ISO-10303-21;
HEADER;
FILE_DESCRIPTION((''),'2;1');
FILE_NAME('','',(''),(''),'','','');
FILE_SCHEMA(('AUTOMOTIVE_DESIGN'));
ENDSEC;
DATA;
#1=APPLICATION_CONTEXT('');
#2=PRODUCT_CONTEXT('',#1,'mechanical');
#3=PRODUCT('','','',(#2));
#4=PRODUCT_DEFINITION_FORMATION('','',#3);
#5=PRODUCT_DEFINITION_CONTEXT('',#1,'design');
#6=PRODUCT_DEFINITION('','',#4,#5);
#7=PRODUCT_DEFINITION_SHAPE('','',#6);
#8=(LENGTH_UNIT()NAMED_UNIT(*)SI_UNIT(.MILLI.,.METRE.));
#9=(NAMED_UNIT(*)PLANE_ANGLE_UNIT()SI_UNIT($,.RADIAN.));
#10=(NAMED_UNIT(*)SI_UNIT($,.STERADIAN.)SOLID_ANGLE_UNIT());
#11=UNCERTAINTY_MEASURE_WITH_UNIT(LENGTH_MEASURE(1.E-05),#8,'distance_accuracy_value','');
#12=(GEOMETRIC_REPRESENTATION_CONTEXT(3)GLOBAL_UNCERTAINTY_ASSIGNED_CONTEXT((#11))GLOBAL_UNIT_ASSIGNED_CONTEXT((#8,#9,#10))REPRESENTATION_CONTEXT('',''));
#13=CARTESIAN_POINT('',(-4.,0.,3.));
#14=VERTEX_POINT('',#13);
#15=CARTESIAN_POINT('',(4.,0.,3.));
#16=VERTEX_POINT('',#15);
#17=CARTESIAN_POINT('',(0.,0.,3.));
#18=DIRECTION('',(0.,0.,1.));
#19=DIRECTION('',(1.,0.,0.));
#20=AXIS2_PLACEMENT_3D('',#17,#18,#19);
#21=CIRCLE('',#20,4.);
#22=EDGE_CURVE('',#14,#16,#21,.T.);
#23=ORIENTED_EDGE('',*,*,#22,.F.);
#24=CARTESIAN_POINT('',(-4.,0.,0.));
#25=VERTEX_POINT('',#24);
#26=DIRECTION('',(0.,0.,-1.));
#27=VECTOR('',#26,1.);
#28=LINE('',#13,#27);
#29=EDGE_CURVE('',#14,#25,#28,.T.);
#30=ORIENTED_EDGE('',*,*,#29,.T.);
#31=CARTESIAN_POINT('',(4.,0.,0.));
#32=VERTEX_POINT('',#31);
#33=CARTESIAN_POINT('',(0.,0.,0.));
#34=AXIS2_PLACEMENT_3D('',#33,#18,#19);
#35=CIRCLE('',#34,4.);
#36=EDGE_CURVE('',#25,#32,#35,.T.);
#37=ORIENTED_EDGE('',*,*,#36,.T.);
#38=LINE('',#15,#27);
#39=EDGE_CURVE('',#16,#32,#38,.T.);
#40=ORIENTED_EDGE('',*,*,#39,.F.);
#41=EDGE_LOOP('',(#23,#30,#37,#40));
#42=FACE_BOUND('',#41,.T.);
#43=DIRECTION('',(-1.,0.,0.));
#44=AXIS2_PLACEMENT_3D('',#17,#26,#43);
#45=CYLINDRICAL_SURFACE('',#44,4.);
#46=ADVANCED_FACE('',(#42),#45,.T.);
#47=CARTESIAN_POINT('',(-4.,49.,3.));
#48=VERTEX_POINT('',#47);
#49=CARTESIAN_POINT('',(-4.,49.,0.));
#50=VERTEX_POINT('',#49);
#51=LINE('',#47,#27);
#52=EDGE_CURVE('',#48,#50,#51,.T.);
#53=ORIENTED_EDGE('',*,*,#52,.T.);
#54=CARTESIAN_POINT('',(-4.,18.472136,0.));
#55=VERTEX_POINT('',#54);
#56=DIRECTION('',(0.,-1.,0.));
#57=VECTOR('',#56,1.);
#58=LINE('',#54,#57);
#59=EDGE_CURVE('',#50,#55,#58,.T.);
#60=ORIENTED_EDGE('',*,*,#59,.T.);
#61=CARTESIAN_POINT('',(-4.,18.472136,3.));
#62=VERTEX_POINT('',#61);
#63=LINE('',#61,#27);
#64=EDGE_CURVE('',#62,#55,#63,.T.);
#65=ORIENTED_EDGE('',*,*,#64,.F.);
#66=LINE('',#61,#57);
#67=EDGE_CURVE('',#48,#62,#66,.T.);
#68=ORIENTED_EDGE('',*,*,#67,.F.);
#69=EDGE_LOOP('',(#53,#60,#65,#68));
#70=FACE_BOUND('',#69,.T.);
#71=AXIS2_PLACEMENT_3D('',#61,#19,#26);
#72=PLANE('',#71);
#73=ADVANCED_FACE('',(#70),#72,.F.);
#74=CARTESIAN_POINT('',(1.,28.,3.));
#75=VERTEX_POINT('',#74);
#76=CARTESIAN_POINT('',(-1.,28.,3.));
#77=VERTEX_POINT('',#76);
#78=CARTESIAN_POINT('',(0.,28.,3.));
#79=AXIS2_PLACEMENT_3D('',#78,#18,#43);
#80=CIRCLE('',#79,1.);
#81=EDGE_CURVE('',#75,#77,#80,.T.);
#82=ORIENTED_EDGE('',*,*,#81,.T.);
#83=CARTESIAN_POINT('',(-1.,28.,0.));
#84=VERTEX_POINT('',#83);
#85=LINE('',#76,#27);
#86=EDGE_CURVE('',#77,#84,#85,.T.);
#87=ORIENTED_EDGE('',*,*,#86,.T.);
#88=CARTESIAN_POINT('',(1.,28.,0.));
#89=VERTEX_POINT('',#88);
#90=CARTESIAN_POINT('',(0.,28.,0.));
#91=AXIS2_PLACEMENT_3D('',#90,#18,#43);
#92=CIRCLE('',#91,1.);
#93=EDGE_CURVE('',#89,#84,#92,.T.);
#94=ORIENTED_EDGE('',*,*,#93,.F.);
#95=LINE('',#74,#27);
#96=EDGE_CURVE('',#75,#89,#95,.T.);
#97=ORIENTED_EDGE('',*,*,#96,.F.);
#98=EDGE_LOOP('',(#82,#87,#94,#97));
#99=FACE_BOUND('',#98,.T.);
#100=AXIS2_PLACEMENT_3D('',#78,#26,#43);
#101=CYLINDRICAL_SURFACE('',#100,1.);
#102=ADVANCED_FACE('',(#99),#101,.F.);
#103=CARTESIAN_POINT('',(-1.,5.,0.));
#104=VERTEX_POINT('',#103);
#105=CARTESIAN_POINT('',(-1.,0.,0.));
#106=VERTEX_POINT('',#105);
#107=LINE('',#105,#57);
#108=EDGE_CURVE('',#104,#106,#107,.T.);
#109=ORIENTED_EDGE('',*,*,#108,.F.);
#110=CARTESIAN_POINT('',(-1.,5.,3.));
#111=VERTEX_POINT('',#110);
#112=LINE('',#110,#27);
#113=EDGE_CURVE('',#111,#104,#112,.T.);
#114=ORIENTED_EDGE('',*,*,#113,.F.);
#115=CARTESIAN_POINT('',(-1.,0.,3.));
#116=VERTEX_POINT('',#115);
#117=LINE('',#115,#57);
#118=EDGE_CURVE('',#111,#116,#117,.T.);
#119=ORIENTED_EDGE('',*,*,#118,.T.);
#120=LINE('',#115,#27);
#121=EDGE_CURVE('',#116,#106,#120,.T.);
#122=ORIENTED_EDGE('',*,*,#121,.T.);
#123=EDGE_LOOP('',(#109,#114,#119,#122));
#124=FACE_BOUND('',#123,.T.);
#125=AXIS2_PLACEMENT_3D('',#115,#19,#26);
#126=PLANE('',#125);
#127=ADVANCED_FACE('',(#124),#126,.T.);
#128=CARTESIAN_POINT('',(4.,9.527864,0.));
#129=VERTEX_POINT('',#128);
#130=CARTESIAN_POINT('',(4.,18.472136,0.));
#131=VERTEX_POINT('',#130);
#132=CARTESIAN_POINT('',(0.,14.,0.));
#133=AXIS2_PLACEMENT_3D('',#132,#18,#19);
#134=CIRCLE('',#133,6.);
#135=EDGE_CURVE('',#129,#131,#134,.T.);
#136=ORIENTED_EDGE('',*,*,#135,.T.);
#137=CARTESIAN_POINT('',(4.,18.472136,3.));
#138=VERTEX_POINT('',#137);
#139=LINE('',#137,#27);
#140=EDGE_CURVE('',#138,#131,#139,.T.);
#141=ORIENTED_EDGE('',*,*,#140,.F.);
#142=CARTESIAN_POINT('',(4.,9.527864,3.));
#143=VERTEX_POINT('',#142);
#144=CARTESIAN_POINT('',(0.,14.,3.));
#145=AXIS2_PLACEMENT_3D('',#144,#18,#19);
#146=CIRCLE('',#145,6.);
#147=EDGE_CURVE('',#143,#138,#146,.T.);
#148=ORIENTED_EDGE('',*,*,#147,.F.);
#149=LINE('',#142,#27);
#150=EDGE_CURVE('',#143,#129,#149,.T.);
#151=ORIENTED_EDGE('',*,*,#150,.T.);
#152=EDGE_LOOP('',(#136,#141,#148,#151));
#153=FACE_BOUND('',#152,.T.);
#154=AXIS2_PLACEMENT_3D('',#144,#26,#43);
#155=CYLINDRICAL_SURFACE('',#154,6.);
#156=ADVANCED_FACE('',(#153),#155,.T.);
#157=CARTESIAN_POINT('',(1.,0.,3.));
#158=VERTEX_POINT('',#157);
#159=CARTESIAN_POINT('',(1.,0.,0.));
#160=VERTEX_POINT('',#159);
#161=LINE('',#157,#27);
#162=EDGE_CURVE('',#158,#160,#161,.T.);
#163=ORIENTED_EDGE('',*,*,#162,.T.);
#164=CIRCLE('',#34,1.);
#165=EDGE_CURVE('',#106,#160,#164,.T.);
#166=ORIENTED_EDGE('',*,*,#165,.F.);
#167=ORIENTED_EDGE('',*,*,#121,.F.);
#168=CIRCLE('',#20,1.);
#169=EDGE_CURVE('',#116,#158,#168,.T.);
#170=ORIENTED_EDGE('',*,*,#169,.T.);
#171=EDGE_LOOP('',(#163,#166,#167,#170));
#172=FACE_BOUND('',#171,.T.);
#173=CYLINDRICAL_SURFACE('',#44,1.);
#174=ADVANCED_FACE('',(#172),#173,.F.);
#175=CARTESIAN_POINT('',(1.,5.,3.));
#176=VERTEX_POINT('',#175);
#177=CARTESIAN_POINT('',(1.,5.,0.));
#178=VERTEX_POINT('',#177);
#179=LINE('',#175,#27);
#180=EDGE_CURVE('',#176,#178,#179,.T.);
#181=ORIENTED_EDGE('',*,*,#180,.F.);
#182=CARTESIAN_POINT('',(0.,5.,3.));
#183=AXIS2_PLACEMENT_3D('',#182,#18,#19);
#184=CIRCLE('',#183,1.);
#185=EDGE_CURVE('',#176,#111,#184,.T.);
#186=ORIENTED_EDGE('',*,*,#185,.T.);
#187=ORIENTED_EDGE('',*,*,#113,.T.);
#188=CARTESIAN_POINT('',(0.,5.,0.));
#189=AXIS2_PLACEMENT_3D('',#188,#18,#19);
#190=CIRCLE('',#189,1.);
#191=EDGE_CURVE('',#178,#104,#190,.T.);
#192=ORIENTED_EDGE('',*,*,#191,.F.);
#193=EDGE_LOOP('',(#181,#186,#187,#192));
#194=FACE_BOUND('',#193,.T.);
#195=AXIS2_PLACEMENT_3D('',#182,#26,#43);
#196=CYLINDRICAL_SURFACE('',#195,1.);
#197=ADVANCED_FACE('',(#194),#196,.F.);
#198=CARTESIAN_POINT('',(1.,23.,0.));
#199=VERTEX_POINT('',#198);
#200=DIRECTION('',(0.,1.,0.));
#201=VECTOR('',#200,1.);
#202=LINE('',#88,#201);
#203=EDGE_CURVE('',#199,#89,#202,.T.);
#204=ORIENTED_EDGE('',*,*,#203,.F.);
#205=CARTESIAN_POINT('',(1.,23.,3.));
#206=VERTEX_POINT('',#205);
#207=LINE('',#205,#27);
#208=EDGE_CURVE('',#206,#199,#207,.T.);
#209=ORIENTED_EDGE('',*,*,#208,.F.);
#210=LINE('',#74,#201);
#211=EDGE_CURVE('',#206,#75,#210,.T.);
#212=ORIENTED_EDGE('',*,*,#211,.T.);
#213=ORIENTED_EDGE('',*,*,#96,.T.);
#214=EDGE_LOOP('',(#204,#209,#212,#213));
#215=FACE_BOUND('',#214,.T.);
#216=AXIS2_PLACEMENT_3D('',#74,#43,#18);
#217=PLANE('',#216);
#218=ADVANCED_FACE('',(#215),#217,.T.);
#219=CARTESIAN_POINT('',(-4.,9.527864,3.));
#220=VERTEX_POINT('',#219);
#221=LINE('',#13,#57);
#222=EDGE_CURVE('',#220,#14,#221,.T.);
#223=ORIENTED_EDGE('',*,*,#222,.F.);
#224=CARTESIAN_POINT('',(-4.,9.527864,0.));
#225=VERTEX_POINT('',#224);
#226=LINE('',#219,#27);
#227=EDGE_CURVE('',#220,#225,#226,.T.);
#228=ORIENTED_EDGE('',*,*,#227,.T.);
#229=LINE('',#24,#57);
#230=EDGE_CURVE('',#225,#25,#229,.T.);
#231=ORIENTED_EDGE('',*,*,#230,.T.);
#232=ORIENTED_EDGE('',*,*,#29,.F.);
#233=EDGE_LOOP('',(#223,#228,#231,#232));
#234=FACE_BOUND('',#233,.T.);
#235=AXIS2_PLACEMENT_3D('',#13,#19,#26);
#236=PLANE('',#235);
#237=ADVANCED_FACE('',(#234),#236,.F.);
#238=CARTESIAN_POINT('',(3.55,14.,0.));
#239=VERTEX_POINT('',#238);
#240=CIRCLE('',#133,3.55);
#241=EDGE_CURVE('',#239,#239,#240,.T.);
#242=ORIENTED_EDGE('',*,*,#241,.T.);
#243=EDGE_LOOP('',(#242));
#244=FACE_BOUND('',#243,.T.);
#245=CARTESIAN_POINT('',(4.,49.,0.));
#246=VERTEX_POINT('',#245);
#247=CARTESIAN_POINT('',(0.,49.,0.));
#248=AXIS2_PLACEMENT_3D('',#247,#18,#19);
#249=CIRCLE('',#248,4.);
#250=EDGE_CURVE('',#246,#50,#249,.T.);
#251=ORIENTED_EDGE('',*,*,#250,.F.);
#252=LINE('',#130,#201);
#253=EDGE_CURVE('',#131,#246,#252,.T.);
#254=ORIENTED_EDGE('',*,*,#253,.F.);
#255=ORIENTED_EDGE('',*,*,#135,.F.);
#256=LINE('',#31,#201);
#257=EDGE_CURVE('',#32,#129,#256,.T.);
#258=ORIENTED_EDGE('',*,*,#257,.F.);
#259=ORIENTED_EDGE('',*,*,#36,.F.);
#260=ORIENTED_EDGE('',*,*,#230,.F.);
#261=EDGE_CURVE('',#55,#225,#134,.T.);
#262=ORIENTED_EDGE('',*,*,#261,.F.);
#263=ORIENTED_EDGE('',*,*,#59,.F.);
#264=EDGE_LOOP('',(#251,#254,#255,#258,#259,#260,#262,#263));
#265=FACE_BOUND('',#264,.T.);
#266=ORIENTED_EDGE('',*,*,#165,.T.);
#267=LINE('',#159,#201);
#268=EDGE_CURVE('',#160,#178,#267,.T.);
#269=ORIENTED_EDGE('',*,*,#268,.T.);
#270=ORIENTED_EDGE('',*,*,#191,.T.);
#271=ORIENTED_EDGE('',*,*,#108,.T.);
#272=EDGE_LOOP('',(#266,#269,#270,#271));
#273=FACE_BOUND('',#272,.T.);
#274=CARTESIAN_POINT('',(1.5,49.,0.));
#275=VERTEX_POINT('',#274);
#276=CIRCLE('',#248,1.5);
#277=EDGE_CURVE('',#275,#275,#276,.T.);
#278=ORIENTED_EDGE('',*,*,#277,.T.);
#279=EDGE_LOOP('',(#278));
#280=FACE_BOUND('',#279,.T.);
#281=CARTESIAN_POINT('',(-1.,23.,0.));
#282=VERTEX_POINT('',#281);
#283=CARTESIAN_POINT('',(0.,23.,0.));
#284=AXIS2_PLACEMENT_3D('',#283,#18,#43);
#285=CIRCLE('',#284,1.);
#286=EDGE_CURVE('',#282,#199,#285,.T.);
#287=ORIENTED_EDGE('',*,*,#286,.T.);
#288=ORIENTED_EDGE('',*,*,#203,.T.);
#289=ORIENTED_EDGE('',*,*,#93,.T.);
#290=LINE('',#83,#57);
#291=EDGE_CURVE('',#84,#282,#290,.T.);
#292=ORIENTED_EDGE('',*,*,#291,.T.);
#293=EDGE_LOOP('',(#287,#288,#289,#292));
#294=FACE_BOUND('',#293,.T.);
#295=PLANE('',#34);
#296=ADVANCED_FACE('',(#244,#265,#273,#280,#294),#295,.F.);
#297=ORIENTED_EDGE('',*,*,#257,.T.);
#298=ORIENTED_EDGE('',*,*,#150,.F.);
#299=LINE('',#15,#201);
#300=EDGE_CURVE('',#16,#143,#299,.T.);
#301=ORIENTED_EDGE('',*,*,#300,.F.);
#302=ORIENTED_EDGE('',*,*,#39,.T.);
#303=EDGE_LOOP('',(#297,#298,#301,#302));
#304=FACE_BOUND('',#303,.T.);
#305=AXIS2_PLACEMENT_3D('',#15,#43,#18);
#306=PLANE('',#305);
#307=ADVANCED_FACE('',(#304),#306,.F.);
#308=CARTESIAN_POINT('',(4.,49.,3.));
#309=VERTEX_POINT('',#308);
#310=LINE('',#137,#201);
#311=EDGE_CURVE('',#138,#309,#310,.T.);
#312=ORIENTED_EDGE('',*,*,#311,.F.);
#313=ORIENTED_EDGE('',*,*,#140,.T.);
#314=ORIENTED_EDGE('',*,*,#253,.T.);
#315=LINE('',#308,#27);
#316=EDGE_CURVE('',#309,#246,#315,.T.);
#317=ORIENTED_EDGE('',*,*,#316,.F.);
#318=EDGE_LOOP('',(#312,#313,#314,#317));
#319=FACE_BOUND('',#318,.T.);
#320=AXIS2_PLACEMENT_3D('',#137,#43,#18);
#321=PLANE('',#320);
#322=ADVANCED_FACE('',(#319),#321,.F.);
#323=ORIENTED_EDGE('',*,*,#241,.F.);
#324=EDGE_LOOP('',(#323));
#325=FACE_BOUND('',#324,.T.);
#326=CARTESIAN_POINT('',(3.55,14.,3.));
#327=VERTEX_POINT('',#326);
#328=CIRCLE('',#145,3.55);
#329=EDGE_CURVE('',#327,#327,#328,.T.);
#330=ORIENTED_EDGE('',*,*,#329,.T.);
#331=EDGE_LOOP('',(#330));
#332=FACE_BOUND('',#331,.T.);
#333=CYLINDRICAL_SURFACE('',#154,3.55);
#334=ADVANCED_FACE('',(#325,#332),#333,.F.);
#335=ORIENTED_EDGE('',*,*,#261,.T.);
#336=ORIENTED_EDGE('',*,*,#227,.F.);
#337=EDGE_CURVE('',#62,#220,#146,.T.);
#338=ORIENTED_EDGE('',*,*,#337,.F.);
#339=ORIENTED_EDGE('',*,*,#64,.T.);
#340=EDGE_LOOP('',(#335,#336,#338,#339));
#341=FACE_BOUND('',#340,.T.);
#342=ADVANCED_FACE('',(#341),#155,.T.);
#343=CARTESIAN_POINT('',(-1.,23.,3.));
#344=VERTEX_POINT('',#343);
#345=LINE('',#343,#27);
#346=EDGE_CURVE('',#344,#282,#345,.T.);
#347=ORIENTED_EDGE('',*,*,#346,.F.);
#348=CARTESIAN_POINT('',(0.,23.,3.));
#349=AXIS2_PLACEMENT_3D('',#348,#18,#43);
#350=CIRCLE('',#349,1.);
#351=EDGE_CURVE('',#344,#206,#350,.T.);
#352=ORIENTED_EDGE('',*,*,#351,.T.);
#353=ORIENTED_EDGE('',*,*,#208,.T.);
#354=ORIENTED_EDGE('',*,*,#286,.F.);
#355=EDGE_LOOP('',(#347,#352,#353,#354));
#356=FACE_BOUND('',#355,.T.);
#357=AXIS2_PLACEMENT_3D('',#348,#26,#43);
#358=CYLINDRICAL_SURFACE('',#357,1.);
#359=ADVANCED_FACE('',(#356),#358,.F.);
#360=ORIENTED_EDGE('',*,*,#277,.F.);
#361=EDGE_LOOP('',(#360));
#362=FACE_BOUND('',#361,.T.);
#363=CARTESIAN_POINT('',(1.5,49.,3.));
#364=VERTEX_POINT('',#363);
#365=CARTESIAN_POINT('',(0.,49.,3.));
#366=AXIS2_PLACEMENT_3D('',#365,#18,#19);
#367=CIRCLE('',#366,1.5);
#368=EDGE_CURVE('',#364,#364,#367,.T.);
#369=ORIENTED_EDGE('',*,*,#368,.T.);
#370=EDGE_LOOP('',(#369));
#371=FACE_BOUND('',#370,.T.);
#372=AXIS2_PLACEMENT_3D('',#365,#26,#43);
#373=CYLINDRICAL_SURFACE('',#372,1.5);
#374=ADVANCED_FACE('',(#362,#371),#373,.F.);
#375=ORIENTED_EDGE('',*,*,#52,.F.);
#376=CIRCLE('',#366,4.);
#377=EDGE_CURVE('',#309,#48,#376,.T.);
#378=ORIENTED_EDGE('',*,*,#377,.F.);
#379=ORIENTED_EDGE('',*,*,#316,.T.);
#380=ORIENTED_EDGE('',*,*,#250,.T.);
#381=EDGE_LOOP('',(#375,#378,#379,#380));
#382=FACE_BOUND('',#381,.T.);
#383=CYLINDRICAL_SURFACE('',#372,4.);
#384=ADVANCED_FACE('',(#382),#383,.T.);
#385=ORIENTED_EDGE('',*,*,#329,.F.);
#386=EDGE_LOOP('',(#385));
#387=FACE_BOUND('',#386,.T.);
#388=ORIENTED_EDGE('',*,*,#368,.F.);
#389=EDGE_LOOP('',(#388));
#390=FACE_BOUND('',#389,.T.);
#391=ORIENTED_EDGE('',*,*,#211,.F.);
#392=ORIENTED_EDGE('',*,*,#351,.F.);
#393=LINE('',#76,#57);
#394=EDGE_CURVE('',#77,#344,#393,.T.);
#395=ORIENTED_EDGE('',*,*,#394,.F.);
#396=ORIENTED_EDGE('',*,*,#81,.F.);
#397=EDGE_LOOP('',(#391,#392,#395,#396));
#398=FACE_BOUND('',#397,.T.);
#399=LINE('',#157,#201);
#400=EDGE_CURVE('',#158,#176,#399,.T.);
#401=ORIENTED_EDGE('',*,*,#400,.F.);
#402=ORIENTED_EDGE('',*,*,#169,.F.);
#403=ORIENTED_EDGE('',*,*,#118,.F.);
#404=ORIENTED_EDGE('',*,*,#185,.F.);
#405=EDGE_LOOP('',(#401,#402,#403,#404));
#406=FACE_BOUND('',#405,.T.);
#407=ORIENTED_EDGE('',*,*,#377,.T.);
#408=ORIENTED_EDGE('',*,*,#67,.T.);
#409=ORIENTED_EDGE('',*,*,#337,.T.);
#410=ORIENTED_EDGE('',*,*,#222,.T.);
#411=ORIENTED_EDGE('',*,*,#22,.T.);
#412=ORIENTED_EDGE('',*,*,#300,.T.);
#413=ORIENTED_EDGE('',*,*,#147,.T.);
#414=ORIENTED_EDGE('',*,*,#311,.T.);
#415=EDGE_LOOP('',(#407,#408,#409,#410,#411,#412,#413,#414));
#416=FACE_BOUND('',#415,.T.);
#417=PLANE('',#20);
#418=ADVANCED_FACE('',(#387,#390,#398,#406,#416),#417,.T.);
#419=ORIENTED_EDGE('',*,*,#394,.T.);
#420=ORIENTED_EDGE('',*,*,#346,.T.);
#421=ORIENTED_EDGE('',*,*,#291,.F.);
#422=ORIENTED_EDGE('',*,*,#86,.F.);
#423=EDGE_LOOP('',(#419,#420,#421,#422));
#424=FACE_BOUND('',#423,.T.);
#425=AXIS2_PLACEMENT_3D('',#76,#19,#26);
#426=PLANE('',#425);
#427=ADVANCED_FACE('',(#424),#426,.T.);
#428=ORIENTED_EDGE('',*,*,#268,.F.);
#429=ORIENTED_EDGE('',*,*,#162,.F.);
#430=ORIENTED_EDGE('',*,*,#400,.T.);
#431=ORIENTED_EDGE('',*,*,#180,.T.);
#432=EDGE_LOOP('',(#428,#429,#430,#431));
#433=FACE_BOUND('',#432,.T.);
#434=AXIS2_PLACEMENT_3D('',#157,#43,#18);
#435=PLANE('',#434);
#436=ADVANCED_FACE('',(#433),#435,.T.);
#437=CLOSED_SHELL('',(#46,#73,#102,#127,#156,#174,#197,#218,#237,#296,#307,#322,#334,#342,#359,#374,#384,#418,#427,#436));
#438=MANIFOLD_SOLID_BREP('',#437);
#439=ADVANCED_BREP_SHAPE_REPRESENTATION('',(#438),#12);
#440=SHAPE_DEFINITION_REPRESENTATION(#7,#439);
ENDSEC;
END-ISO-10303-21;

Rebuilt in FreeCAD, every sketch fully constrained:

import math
import FreeCAD as App
import Part
import Sketcher
Q = App.Units.Quantity

doc = App.newDocument("Part")
params = doc.addObject("Spreadsheet::Sheet", "Params")
for row, (alias, value) in enumerate([
    ("sketch1_diameter", "3 mm"),
    ("sketch1_radius", "6 mm"),
    ("sketch1_radius2", "4 mm"),
    ("sketch1_radius3", "1 mm"),
    ("sketch1_diameter2", "7.1 mm"),
    ("pad1_length", "3 mm"),
], start=1):
    params.set(f"A{row}", alias)
    params.set(f"B{row}", "=" + value)
    params.setAlias(f"B{row}", alias)

body = doc.addObject("PartDesign::Body", "Body")

# Sketch on XY plane
sketch1 = body.newObject("Sketcher::SketchObject", "Sketch")
sketch1.AttachmentSupport = (doc.getObject("XY_Plane"), [""])
sketch1.MapMode = "FlatFace"
sketch1.addGeometry([
    Part.LineSegment(App.Vector(4, 0, 0), App.Vector(4, 9.5, 0)),  # 0
    Part.ArcOfCircle(Part.Circle(App.Vector(0, 14, 0), App.Vector(0, 0, 1), 6), math.radians(-48), math.radians(48)),  # 1
    Part.LineSegment(App.Vector(4, 18.5, 0), App.Vector(4, 49, 0)),  # 2
    Part.ArcOfCircle(Part.Circle(App.Vector(0, 49, 0), App.Vector(0, 0, 1), 4), math.radians(0), math.radians(180)),  # 3
    Part.LineSegment(App.Vector(-4, 49, 0), App.Vector(-4, 18.5, 0)),  # 4
    Part.ArcOfCircle(Part.Circle(App.Vector(0, 14, 0), App.Vector(0, 0, 1), 6), math.radians(132), math.radians(228)),  # 5
    Part.LineSegment(App.Vector(-4, 9.5, 0), App.Vector(-4, 0, 0)),  # 6
    Part.ArcOfCircle(Part.Circle(App.Vector(0, 0, 0), App.Vector(0, 0, 1), 4), math.radians(180), math.radians(360)),  # 7
    Part.ArcOfCircle(Part.Circle(App.Vector(0, 0, 0), App.Vector(0, 0, 1), 1), math.radians(180), math.radians(360)),  # 8
    Part.LineSegment(App.Vector(-1, 0, 0), App.Vector(-1, 5, 0)),  # 9
    Part.ArcOfCircle(Part.Circle(App.Vector(0, 5, 0), App.Vector(0, 0, 1), 1), math.radians(0), math.radians(180)),  # 10
    Part.LineSegment(App.Vector(1, 5, 0), App.Vector(1, 0, 0)),  # 11
    Part.Circle(App.Vector(0, 14, 0), App.Vector(0, 0, 1), 3.5),  # 12
    Part.LineSegment(App.Vector(-1, 23, 0), App.Vector(-1, 28, 0)),  # 13
    Part.ArcOfCircle(Part.Circle(App.Vector(0, 28, 0), App.Vector(0, 0, 1), 1), math.radians(0), math.radians(180)),  # 14
    Part.LineSegment(App.Vector(1, 28, 0), App.Vector(1, 23, 0)),  # 15
    Part.ArcOfCircle(Part.Circle(App.Vector(0, 23, 0), App.Vector(0, 0, 1), 1), math.radians(180), math.radians(360)),  # 16
    Part.Circle(App.Vector(0, 49, 0), App.Vector(0, 0, 1), 1.5),  # 17
], False)
sketch1.addConstraint([
    Sketcher.Constraint("Coincident", 0, 2, 1, 1),
    Sketcher.Constraint("Coincident", 1, 2, 2, 1),
    Sketcher.Constraint("Tangent", 2, 2, 3, 1),
    Sketcher.Constraint("Tangent", 3, 2, 4, 1),
    Sketcher.Constraint("Coincident", 4, 2, 5, 1),
    Sketcher.Constraint("Coincident", 5, 2, 6, 1),
    Sketcher.Constraint("Tangent", 6, 2, 7, 1),
    Sketcher.Constraint("Tangent", 7, 2, 0, 1),
    Sketcher.Constraint("Tangent", 8, 1, 9, 1),
    Sketcher.Constraint("Tangent", 9, 2, 10, 2),
    Sketcher.Constraint("Tangent", 10, 1, 11, 1),
    Sketcher.Constraint("Tangent", 11, 2, 8, 2),
    Sketcher.Constraint("Tangent", 13, 2, 14, 2),
    Sketcher.Constraint("Tangent", 14, 1, 15, 1),
    Sketcher.Constraint("Tangent", 15, 2, 16, 2),
    Sketcher.Constraint("Tangent", 16, 1, 13, 1),
    Sketcher.Constraint("Vertical", 0),
    Sketcher.Constraint("Vertical", 2),
    Sketcher.Constraint("Vertical", 4),
    Sketcher.Constraint("Vertical", 6),
    Sketcher.Constraint("Vertical", 9),
    Sketcher.Constraint("Vertical", 11),
    Sketcher.Constraint("Vertical", 13),
    Sketcher.Constraint("Vertical", 15),
    Sketcher.Constraint("Coincident", 7, 3, -1, 1),
    Sketcher.Constraint("Coincident", 8, 3, -1, 1),
    Sketcher.Constraint("Coincident", 5, 3, 1, 3),
    Sketcher.Constraint("Coincident", 12, 3, 1, 3),
    Sketcher.Constraint("Coincident", 17, 3, 3, 3),
    Sketcher.Constraint("Equal", 1, 5),
    Sketcher.Constraint("Equal", 3, 7),
    Sketcher.Constraint("Equal", 10, 14),
    Sketcher.Constraint("Symmetric", 1, 2, 4, 2, -2),
    Sketcher.Constraint("PointOnObject", 14, 3, -2),
    Sketcher.Constraint("Equal", 11, 13),
    Sketcher.Constraint("Diameter", 17, Q("3 mm")),
    Sketcher.Constraint("Radius", 1, Q("6 mm")),
    Sketcher.Constraint("Radius", 3, Q("4 mm")),
    Sketcher.Constraint("Radius", 8, Q("1 mm")),
    Sketcher.Constraint("Diameter", 12, Q("7.1 mm")),
    Sketcher.Constraint("DistanceY", 9, 1, 9, 2, Q("5 mm")),
    Sketcher.Constraint("DistanceY", -1, 1, 1, 3, Q("14 mm")),
    Sketcher.Constraint("DistanceY", -1, 1, 3, 3, Q("49 mm")),
    Sketcher.Constraint("DistanceY", -1, 1, 14, 3, Q("28 mm")),
])
sketch1.setExpression("Constraints[35]", "Params.sketch1_diameter")
sketch1.setExpression("Constraints[36]", "Params.sketch1_radius")
sketch1.setExpression("Constraints[37]", "Params.sketch1_radius2")
sketch1.setExpression("Constraints[38]", "Params.sketch1_radius3")
sketch1.setExpression("Constraints[39]", "Params.sketch1_diameter2")
pad1 = body.newObject("PartDesign::Pad", "Pad")
pad1.Profile = sketch1
pad1.setExpression("Length", "Params.pad1_length")

doc.recompute()
